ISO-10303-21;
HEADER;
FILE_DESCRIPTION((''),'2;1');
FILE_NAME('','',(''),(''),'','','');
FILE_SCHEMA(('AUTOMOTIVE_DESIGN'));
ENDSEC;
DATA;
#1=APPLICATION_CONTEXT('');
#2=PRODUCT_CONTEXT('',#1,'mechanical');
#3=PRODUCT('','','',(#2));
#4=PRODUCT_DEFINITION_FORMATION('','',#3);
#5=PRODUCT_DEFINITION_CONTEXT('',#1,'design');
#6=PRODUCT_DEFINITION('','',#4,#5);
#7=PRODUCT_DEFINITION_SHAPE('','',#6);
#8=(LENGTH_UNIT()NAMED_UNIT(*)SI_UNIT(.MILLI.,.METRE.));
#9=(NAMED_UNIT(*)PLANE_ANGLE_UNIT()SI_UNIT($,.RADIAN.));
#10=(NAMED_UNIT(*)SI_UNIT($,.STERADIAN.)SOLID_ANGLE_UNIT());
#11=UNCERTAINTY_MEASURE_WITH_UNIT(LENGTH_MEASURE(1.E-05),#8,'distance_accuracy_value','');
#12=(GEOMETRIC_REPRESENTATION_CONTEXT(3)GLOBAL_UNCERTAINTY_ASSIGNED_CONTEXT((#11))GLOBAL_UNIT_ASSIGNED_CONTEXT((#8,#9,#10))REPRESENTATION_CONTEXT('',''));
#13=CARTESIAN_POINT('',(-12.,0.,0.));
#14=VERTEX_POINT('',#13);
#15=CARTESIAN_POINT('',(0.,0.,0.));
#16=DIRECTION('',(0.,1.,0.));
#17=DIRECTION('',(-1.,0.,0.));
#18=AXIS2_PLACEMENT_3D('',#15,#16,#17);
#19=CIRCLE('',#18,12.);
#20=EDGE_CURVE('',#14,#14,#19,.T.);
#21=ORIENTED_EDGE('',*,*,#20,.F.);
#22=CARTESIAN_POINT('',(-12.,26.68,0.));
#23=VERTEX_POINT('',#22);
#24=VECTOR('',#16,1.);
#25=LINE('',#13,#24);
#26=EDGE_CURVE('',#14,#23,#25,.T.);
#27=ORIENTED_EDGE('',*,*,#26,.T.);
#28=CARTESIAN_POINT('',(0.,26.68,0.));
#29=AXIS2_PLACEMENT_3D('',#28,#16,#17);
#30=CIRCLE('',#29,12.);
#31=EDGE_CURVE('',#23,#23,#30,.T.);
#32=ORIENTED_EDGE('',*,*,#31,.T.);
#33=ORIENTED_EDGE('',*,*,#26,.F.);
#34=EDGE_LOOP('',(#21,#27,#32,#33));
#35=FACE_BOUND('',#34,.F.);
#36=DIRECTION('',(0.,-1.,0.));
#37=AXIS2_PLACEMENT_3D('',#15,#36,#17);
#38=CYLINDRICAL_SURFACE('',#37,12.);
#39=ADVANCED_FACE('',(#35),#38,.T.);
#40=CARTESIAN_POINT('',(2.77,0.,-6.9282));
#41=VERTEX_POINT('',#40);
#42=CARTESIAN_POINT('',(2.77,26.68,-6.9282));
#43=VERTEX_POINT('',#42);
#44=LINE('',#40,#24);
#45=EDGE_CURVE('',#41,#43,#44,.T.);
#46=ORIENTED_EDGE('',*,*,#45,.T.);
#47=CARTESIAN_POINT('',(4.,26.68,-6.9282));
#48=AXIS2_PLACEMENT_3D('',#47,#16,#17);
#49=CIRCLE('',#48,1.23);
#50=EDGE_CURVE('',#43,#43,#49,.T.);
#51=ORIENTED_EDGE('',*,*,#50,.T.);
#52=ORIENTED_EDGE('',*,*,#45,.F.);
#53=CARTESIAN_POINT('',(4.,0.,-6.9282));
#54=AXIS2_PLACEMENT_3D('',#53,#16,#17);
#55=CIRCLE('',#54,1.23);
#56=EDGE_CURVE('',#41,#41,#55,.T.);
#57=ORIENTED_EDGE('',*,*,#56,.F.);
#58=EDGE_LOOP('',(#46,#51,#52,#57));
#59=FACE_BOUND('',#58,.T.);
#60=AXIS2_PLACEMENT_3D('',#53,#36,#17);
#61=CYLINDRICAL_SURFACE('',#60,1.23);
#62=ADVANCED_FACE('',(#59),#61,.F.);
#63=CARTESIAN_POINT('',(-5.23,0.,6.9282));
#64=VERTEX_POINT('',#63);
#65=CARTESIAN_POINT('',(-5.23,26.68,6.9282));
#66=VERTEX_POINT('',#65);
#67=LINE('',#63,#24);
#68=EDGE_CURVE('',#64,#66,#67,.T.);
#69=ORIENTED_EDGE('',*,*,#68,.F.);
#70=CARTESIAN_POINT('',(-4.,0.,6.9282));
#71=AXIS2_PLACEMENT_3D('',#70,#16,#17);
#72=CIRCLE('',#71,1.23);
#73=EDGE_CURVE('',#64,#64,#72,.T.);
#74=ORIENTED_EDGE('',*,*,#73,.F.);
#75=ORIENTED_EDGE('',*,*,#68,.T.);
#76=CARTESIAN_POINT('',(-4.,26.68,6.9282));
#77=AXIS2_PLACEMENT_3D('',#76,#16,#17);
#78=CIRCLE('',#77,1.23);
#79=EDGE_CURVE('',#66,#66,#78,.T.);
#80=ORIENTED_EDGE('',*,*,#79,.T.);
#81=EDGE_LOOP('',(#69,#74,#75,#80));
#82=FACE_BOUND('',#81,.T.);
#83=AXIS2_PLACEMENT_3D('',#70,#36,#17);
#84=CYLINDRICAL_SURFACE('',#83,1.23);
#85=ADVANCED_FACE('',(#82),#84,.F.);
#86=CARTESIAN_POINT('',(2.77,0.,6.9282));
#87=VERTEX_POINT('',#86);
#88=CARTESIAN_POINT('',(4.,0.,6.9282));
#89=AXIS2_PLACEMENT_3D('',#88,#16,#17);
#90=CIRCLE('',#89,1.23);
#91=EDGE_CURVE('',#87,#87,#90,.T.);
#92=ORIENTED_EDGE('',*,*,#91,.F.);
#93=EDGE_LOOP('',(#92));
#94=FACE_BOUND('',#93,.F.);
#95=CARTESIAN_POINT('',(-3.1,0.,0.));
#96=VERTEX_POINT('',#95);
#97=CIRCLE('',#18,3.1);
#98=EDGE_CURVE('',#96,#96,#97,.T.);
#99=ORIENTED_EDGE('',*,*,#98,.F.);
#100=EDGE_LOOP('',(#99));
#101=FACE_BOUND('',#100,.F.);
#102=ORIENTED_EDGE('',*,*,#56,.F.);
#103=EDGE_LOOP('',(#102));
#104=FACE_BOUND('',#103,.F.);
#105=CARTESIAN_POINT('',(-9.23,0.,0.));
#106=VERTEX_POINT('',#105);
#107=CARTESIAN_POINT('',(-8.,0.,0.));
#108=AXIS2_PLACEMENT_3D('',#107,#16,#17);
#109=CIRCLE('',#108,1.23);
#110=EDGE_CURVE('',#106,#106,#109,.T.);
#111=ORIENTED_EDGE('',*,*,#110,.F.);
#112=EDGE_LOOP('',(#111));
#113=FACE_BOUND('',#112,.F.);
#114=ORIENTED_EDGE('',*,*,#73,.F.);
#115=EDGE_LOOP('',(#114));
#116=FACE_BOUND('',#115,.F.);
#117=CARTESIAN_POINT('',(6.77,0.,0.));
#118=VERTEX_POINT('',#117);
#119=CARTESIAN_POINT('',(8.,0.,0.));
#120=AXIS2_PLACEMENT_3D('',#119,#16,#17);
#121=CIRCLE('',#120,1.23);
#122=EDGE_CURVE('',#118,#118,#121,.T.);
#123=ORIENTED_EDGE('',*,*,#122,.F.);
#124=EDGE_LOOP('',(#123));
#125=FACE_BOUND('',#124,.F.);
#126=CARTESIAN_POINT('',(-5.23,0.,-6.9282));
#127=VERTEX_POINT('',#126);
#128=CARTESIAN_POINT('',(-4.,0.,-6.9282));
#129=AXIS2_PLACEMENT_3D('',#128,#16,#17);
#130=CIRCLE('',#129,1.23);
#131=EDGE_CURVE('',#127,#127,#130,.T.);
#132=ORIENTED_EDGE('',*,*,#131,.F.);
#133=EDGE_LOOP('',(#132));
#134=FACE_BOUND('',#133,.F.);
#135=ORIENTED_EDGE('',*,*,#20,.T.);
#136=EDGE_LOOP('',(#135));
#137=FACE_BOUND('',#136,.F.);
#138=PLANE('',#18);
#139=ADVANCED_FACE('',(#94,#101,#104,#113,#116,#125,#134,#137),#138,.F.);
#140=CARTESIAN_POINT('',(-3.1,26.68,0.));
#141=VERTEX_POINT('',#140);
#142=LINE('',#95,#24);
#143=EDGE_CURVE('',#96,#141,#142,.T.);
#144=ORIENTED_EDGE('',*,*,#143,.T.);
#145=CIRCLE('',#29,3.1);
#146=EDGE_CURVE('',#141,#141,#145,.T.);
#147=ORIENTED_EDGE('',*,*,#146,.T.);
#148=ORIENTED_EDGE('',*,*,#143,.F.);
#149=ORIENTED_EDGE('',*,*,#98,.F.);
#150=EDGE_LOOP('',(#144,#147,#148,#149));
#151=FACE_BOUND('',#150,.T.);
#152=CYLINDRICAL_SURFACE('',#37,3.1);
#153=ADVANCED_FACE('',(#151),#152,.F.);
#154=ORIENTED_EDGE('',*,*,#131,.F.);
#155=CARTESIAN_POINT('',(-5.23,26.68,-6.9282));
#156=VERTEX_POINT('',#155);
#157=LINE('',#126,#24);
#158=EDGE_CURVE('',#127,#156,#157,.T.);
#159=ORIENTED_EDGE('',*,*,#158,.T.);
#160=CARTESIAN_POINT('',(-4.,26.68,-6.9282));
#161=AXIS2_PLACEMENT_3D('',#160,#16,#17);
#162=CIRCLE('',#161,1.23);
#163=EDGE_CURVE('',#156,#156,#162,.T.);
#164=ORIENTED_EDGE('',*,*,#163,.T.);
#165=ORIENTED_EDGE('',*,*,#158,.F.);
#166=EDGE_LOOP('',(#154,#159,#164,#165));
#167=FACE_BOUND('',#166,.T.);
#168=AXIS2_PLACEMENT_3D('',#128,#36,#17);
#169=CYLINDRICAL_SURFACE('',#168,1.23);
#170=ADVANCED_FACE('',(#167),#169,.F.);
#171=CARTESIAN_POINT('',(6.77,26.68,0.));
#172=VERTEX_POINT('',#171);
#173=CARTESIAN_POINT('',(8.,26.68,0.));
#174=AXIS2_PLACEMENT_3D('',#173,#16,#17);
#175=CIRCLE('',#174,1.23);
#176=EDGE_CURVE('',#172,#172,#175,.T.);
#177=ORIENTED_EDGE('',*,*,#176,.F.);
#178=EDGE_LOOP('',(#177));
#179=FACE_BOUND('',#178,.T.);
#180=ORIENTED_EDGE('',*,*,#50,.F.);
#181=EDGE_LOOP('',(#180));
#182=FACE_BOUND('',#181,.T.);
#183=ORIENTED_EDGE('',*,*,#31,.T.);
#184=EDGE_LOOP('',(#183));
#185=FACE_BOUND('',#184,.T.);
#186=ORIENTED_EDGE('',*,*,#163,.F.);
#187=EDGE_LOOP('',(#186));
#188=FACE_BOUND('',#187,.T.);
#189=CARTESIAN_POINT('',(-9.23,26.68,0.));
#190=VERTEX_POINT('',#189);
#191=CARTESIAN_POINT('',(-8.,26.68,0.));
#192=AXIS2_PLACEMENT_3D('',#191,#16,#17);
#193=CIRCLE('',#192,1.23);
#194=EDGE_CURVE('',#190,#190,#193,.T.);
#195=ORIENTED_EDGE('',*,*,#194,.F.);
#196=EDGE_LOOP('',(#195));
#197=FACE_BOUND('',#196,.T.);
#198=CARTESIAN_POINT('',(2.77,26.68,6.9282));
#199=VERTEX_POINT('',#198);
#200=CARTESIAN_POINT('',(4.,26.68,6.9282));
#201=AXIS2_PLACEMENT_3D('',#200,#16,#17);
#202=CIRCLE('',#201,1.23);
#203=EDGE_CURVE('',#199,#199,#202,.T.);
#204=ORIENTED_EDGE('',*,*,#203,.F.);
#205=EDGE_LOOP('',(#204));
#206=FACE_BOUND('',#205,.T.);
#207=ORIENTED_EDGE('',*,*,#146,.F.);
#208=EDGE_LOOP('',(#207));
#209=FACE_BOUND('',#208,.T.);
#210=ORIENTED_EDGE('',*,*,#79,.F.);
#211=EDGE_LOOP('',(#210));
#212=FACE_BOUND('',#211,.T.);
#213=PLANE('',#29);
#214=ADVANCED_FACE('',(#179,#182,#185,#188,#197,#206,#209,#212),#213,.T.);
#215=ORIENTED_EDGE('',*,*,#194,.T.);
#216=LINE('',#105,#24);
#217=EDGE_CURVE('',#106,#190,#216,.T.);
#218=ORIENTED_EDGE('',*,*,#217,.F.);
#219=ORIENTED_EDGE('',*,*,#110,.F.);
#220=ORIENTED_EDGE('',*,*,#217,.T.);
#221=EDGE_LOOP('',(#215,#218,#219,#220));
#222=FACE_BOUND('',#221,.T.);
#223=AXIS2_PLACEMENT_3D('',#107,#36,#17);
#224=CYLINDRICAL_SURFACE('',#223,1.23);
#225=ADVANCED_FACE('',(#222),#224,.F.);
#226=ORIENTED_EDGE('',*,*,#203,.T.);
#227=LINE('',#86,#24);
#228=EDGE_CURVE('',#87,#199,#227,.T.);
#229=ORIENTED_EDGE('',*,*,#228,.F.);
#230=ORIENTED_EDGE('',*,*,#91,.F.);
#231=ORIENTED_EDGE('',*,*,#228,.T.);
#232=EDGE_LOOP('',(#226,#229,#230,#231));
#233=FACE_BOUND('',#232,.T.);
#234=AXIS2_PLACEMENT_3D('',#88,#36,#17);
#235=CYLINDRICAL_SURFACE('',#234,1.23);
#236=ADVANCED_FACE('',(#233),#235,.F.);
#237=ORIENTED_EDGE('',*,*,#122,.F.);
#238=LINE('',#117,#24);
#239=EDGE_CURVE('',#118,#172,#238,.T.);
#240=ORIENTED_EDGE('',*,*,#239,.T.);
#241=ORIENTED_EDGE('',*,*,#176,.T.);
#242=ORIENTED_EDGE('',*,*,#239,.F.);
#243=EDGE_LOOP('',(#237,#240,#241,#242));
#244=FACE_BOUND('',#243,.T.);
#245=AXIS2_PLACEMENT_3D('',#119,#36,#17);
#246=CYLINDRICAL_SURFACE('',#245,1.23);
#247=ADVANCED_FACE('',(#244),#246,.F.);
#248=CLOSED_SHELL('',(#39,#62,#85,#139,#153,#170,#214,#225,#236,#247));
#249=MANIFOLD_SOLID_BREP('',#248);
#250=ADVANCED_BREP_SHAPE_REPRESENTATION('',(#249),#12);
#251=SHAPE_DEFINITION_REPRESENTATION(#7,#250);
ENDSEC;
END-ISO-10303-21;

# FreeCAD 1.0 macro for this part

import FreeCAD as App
import Part
import Sketcher

V = App.Vector

doc = App.newDocument("Part")
body = doc.addObject("PartDesign::Body", "Body")

# Sketch on XZ plane
sketch1 = body.newObject("Sketcher::SketchObject", "Sketch")
sketch1.AttachmentSupport = (doc.getObject("XZ_Plane"), [""])
sketch1.MapMode = "FlatFace"
sketch1.addGeometry([
    Part.Circle(V(0, 0, 0), V(0, 0, 1), 12),  # 0
    Part.Circle(V(4, -6.9, 0), V(0, 0, 1), 1.2),  # 1
    Part.Circle(V(-4, -6.9, 0), V(0, 0, 1), 1.2),  # 2
    Part.Circle(V(8, 0, 0), V(0, 0, 1), 1.2),  # 3
    Part.Circle(V(4, 6.9, 0), V(0, 0, 1), 1.2),  # 4
    Part.Circle(V(0, 0, 0), V(0, 0, 1), 3.1),  # 5
    Part.Circle(V(-8, 0, 0), V(0, 0, 1), 1.2),  # 6
    Part.Circle(V(-4, 6.9, 0), V(0, 0, 1), 1.2),  # 7
], False)
sketch1.addConstraint([
    Sketcher.Constraint("Coincident", 0, 3, -1, 1),
    Sketcher.Constraint("Coincident", 5, 3, -1, 1),
    Sketcher.Constraint("Equal", 1, 2),
    Sketcher.Constraint("Equal", 2, 3),
    Sketcher.Constraint("Equal", 3, 4),
    Sketcher.Constraint("Equal", 4, 6),
    Sketcher.Constraint("Equal", 6, 7),
    Sketcher.Constraint("Symmetric", 2, 3, 4, 3, -1, 1),
    Sketcher.Constraint("Symmetric", 3, 3, 6, 3, -1, 1),
    Sketcher.Constraint("Symmetric", 1, 3, 7, 3, -1, 1),
    Sketcher.Constraint("Symmetric", 1, 3, 2, 3, -2),
    Sketcher.Constraint("PointOnObject", 3, 3, -1),
    Sketcher.Constraint("Diameter", 0, 24.0),
    Sketcher.Constraint("Diameter", 5, 6.2),
    Sketcher.Constraint("Diameter", 1, 2.46),
    Sketcher.Constraint("DistanceX", -1, 1, 3, 3, 8.0),
    Sketcher.Constraint("DistanceX", 2, 3, 1, 3, 8.0),
    Sketcher.Constraint("DistanceY", 1, 3, -1, 1, 6.9282),
])
pad1 = body.newObject("PartDesign::Pad", "Pad")
pad1.Profile = sketch1
pad1.Length = 26.68
pad1.Reversed = True

doc.recompute()
